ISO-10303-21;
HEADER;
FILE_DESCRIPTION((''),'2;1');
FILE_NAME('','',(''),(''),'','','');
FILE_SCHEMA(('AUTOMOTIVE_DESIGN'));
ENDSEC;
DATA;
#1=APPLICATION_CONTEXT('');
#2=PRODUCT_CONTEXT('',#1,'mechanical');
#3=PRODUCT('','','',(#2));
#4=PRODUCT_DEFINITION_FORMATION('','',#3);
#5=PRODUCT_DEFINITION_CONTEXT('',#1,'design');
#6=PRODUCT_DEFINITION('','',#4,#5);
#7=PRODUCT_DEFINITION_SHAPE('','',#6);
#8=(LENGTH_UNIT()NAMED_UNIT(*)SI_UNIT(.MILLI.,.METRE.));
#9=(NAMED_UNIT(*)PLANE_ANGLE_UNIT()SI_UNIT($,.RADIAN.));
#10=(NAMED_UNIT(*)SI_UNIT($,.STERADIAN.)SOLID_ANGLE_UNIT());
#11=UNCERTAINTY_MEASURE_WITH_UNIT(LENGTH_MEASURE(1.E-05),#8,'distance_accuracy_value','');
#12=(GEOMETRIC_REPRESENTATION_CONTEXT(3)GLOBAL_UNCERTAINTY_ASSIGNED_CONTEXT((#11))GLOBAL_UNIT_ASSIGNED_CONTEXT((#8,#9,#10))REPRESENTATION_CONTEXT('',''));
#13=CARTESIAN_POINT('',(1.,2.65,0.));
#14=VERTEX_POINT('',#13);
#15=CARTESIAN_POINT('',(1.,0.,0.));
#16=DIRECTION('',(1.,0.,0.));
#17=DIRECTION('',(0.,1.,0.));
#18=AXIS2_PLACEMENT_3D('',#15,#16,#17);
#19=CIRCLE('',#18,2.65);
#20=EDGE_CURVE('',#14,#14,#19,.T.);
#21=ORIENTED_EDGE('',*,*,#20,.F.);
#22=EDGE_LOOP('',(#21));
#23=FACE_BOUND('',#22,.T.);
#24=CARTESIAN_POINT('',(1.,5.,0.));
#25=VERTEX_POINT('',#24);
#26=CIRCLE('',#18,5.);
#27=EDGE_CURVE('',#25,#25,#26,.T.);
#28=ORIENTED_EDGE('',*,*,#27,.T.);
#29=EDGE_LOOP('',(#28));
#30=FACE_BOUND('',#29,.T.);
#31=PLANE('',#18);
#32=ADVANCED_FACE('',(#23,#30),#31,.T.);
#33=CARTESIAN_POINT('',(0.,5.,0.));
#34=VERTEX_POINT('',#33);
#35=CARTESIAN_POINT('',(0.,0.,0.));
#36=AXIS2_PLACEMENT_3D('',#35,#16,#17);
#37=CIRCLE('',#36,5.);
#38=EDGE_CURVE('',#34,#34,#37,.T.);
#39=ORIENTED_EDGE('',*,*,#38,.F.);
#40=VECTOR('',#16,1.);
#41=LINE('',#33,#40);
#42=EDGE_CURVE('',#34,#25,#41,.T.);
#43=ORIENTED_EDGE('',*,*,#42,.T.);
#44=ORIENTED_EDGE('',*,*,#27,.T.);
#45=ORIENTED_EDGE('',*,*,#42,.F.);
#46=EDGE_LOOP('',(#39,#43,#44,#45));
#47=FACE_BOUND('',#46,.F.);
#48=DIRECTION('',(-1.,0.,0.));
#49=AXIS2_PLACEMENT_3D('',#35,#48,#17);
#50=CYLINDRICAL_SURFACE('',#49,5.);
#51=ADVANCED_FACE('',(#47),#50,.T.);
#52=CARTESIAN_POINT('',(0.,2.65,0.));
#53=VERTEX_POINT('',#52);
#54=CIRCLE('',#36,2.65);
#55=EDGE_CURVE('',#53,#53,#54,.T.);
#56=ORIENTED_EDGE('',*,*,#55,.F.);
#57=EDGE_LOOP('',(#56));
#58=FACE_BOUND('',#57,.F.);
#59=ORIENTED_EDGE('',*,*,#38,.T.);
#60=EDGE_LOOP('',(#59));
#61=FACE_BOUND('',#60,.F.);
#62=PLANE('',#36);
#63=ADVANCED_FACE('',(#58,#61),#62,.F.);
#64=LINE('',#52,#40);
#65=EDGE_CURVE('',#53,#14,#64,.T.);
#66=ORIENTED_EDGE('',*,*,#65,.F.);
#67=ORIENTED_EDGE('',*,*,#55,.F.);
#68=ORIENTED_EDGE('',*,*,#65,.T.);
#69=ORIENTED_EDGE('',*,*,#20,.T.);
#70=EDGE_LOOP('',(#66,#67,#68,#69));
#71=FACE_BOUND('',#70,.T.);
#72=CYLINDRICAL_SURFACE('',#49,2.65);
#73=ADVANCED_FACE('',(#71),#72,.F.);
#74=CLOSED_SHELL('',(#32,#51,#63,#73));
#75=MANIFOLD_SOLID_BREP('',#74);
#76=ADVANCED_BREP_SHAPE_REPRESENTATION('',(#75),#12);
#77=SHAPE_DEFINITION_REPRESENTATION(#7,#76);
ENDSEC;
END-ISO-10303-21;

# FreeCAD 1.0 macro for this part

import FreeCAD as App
import Part
import Sketcher
from FreeCAD import Vector

doc = App.newDocument("Part")
body = doc.addObject("PartDesign::Body", "Body")

# Sketch on YZ plane
sketch1 = body.newObject("Sketcher::SketchObject", "Sketch")
sketch1.AttachmentSupport = (doc.getObject("YZ_Plane"), [""])
sketch1.MapMode = "FlatFace"
sketch1.addGeometry([
    Part.Circle(Vector(0, 0, 0), Vector(0, 0, 1), 5),
    Part.Circle(Vector(0, 0, 0), Vector(0, 0, 1), 2.65),
], False)
sketch1.addConstraint([
    Sketcher.Constraint("Coincident", 0, 3, -1, 1),
    Sketcher.Constraint("Coincident", 1, 3, -1, 1),
    Sketcher.Constraint("Diameter", 0, 10.0),
    Sketcher.Constraint("Diameter", 1, 5.3),
])
pad1 = body.newObject("PartDesign::Pad", "Pad")
pad1.Profile = sketch1
pad1.Length = 1

doc.recompute()
